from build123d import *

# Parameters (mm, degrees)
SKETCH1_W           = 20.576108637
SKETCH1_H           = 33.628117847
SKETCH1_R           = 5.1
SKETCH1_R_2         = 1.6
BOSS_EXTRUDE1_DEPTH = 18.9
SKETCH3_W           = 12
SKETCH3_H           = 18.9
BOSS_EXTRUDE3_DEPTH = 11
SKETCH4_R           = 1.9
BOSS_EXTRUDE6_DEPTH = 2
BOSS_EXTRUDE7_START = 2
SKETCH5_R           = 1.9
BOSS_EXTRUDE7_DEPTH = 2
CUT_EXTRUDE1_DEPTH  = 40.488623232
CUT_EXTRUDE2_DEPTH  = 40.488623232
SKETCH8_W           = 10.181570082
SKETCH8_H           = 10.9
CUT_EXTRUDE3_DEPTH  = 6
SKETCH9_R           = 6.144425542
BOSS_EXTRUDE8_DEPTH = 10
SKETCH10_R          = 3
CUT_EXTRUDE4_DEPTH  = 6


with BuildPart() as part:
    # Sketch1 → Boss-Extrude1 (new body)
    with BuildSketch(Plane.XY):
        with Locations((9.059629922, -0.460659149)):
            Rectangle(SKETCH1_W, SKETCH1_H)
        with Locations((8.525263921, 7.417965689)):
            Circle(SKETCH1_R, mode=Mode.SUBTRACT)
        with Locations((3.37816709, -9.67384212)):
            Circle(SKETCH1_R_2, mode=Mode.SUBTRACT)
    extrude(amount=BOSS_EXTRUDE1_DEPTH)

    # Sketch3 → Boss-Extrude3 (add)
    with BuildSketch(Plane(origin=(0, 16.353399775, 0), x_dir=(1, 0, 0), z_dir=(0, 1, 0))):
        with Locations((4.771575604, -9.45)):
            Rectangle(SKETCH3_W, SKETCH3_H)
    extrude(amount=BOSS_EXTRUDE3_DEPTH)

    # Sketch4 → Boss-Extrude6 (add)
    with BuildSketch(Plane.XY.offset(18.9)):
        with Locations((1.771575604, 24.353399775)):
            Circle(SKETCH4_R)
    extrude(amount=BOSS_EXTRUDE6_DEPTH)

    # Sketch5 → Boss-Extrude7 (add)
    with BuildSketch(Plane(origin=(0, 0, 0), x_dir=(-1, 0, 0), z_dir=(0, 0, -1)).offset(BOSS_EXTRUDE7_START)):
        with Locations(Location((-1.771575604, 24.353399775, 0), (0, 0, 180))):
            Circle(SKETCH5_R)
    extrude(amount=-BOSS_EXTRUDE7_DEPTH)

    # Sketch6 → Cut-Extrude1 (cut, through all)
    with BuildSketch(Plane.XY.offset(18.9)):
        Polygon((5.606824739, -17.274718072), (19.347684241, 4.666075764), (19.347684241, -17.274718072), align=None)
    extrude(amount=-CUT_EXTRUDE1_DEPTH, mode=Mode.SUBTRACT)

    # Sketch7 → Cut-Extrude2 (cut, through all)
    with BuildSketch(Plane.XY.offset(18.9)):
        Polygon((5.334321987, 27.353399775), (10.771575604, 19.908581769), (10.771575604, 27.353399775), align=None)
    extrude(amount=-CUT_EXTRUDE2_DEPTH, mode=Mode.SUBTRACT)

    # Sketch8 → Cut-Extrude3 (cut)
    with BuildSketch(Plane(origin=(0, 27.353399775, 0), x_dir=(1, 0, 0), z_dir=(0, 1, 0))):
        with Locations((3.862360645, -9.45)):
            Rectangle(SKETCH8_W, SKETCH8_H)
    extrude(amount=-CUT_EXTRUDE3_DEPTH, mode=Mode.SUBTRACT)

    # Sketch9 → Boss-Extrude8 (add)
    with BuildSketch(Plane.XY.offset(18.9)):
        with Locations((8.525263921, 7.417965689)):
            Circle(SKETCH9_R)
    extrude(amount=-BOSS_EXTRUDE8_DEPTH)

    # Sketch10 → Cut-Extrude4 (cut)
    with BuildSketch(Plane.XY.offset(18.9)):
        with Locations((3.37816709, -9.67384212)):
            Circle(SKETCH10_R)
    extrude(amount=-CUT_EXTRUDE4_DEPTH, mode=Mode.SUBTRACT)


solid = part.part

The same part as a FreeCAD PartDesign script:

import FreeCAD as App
import Part
import Sketcher


def add_polygon(sketch, points):
    """Adds a closed chain of lines whose ends are joined by coincident constraints."""
    first, n = sketch.GeometryCount, len(points)
    for a, b in zip(points, points[1:] + points[:1]):
        sketch.addGeometry(Part.LineSegment(App.Vector(*a, 0), App.Vector(*b, 0)), False)
    for i in range(n):
        sketch.addConstraint(Sketcher.Constraint("Coincident", first + i, 2, first + (i + 1) % n, 1))

doc = App.newDocument("Part")
body = doc.addObject("PartDesign::Body", "Body")

sketch1 = doc.addObject("Sketcher::SketchObject", "Sketch")
body.addObject(sketch1)
sketch1.AttachmentSupport = (doc.XY_Plane, [""])
sketch1.MapMode = "FlatFace"
add_polygon(sketch1, [(-1.2, 16.4), (-1.2, -17.3), (19.3, -17.3), (19.3, 16.4)])
sketch1.addGeometry(Part.Circle(App.Vector(3.4, -9.7, 0), App.Vector(0, 0, 1), 1.6), False)
sketch1.addGeometry(Part.Circle(App.Vector(8.5, 7.4, 0), App.Vector(0, 0, 1), 5.1), False)
sketch1.addConstraint([
    Sketcher.Constraint("Vertical", 0),
    Sketcher.Constraint("Horizontal", 1),
    Sketcher.Constraint("Vertical", 2),
    Sketcher.Constraint("Horizontal", 3),
    Sketcher.Constraint("Diameter", 4, 3.2),
    Sketcher.Constraint("Diameter", 5, 10.2),
    Sketcher.Constraint("DistanceX", 1, 1, 1, 2, 20.576109),
    Sketcher.Constraint("DistanceY", -1, 1, 2, 2, 16.3534),
    Sketcher.Constraint("DistanceY", 0, 2, 0, 1, 33.628118),
    Sketcher.Constraint("DistanceX", 0, 2, 4, 3, 4.606591),
    Sketcher.Constraint("DistanceX", 0, 2, 5, 3, 9.753688),
    Sketcher.Constraint("DistanceY", 4, 3, 2, 2, 26.027242),
    Sketcher.Constraint("DistanceX", -1, 1, 4, 3, 3.378167),
    Sketcher.Constraint("DistanceY", -1, 1, 5, 3, 7.417966),
])
pad1 = doc.addObject("PartDesign::Pad", "Pad")
body.addObject(pad1)
pad1.Profile = sketch1
pad1.Length = 18.9

sketch2 = doc.addObject("Sketcher::SketchObject", "Sketch001")
body.addObject(sketch2)
sketch2.AttachmentSupport = (doc.XZ_Plane, [""])
sketch2.MapMode = "FlatFace"
sketch2.AttachmentOffset = App.Placement(App.Vector(0, 0, -16.3534), App.Rotation())
add_polygon(sketch2, [(-1, 0), (-1, 19), (11, 19), (11, 0)])
sketch2.addConstraint([
    Sketcher.Constraint("Vertical", 0),
    Sketcher.Constraint("Horizontal", 1),
    Sketcher.Constraint("Vertical", 2),
    Sketcher.Constraint("Horizontal", 3),
    Sketcher.Constraint("PointOnObject", 2, 2, -1),
    Sketcher.Constraint("DistanceX", 1, 1, 1, 2, 12.0),
    Sketcher.Constraint("DistanceY", 0, 1, 0, 2, 18.9),
    Sketcher.Constraint("DistanceX", 0, 2, -1, 1, 1.228424),
])
pad2 = doc.addObject("PartDesign::Pad", "Pad001")
body.addObject(pad2)
pad2.Profile = sketch2
pad2.Length = 11
pad2.Reversed = True

sketch3 = doc.addObject("Sketcher::SketchObject", "Sketch002")
body.addObject(sketch3)
sketch3.AttachmentSupport = (doc.XY_Plane, [""])
sketch3.MapMode = "FlatFace"
sketch3.AttachmentOffset = App.Placement(App.Vector(0, 0, 18.9), App.Rotation())
sketch3.addGeometry(Part.Circle(App.Vector(1.8, 24.4, 0), App.Vector(0, 0, 1), 1.9), False)
sketch3.addConstraint([
    Sketcher.Constraint("Diameter", 0, 3.8),
    Sketcher.Constraint("DistanceY", -1, 1, 0, 3, 24.3534),
    Sketcher.Constraint("DistanceX", -1, 1, 0, 3, 1.771576),
])
pad3 = doc.addObject("PartDesign::Pad", "Pad002")
body.addObject(pad3)
pad3.Profile = sketch3
pad3.Length = 2

sketch4 = doc.addObject("Sketcher::SketchObject", "Sketch003")
body.addObject(sketch4)
sketch4.AttachmentSupport = (doc.XY_Plane, [""])
sketch4.MapMode = "FlatFace"
sketch4.AttachmentOffset = App.Placement(App.Vector(0, 0, -2), App.Rotation())
sketch4.addGeometry(Part.Circle(App.Vector(1.8, 24.4, 0), App.Vector(0, 0, 1), 1.9), False)
sketch4.addConstraint([
    Sketcher.Constraint("Diameter", 0, 3.8),
    Sketcher.Constraint("DistanceY", -1, 1, 0, 3, 24.3534),
    Sketcher.Constraint("DistanceX", -1, 1, 0, 3, 1.771576),
])
pad4 = doc.addObject("PartDesign::Pad", "Pad003")
body.addObject(pad4)
pad4.Profile = sketch4
pad4.Length = 2

sketch5 = doc.addObject("Sketcher::SketchObject", "Sketch004")
body.addObject(sketch5)
sketch5.AttachmentSupport = (doc.XY_Plane, [""])
sketch5.MapMode = "FlatFace"
sketch5.AttachmentOffset = App.Placement(App.Vector(0, 0, 18.9), App.Rotation())
add_polygon(sketch5, [(19, 5), (6, -17), (19, -17)])
sketch5.addConstraint([
    Sketcher.Constraint("Horizontal", 1),
    Sketcher.Constraint("Vertical", 2),
    Sketcher.Constraint("DistanceX", 1, 1, 1, 2, 13.74086),
    Sketcher.Constraint("DistanceY", 2, 1, 2, 2, 21.940794),
    Sketcher.Constraint("DistanceY", 0, 2, -1, 1, 17.274718),
    Sketcher.Constraint("DistanceX", -1, 1, 0, 2, 5.606825),
])
pocket1 = doc.addObject("PartDesign::Pocket", "Pocket")
body.addObject(pocket1)
pocket1.Profile = sketch5
pocket1.Type = "ThroughAll"

sketch6 = doc.addObject("Sketcher::SketchObject", "Sketch005")
body.addObject(sketch6)
sketch6.AttachmentSupport = (doc.XY_Plane, [""])
sketch6.MapMode = "FlatFace"
sketch6.AttachmentOffset = App.Placement(App.Vector(0, 0, 18.9), App.Rotation())
add_polygon(sketch6, [(5, 27), (11, 20), (11, 27)])
sketch6.addConstraint([
    Sketcher.Constraint("Vertical", 1),
    Sketcher.Constraint("Horizontal", 2),
    Sketcher.Constraint("DistanceY", 1, 1, 1, 2, 7.444818),
    Sketcher.Constraint("DistanceY", -1, 1, 1, 2, 27.3534),
    Sketcher.Constraint("Distance", 0, 9.21895),
    Sketcher.Constraint("DistanceX", -1, 1, 2, 2, 5.334322),
])
pocket2 = doc.addObject("PartDesign::Pocket", "Pocket001")
body.addObject(pocket2)
pocket2.Profile = sketch6
pocket2.Type = "ThroughAll"

sketch7 = doc.addObject("Sketcher::SketchObject", "Sketch006")
body.addObject(sketch7)
sketch7.AttachmentSupport = (doc.XZ_Plane, [""])
sketch7.MapMode = "FlatFace"
sketch7.AttachmentOffset = App.Placement(App.Vector(0, 0, -27.3534), App.Rotation())
add_polygon(sketch7, [(-1, 4), (-1, 15), (9, 15), (9, 4)])
sketch7.addConstraint([
    Sketcher.Constraint("Vertical", 0),
    Sketcher.Constraint("Horizontal", 1),
    Sketcher.Constraint("Vertical", 2),
    Sketcher.Constraint("Horizontal", 3),
    Sketcher.Constraint("DistanceY", 0, 1, 0, 2, 10.9),
    Sketcher.Constraint("DistanceY", -1, 1, 2, 2, 4.0),
    Sketcher.Constraint("DistanceX", 1, 1, 1, 2, 10.18157),
    Sketcher.Constraint("DistanceX", 0, 2, -1, 1, 1.228424),
])
pocket3 = doc.addObject("PartDesign::Pocket", "Pocket002")
body.addObject(pocket3)
pocket3.Profile = sketch7
pocket3.Length = 6
pocket3.Reversed = True

sketch8 = doc.addObject("Sketcher::SketchObject", "Sketch007")
body.addObject(sketch8)
sketch8.AttachmentSupport = (doc.XY_Plane, [""])
sketch8.MapMode = "FlatFace"
sketch8.AttachmentOffset = App.Placement(App.Vector(0, 0, 18.9), App.Rotation())
sketch8.addGeometry(Part.Circle(App.Vector(9, 7, 0), App.Vector(0, 0, 1), 6), False)
sketch8.addConstraint([
    Sketcher.Constraint("Diameter", 0, 12.288851),
    Sketcher.Constraint("DistanceX", -1, 1, 0, 3, 8.525264),
    Sketcher.Constraint("DistanceY", -1, 1, 0, 3, 7.417966),
])
pad5 = doc.addObject("PartDesign::Pad", "Pad004")
body.addObject(pad5)
pad5.Profile = sketch8
pad5.Length = 10
pad5.Reversed = True

sketch9 = doc.addObject("Sketcher::SketchObject", "Sketch008")
body.addObject(sketch9)
sketch9.AttachmentSupport = (doc.XY_Plane, [""])
sketch9.MapMode = "FlatFace"
sketch9.AttachmentOffset = App.Placement(App.Vector(0, 0, 18.9), App.Rotation())
sketch9.addGeometry(Part.Circle(App.Vector(3.4, -9.7, 0), App.Vector(0, 0, 1), 3), False)
sketch9.addConstraint([
    Sketcher.Constraint("Diameter", 0, 6.0),
    Sketcher.Constraint("DistanceX", -1, 1, 0, 3, 3.378167),
    Sketcher.Constraint("DistanceY", 0, 3, -1, 1, 9.673842),
])
pocket4 = doc.addObject("PartDesign::Pocket", "Pocket003")
body.addObject(pocket4)
pocket4.Profile = sketch9
pocket4.Length = 6

doc.recompute()
